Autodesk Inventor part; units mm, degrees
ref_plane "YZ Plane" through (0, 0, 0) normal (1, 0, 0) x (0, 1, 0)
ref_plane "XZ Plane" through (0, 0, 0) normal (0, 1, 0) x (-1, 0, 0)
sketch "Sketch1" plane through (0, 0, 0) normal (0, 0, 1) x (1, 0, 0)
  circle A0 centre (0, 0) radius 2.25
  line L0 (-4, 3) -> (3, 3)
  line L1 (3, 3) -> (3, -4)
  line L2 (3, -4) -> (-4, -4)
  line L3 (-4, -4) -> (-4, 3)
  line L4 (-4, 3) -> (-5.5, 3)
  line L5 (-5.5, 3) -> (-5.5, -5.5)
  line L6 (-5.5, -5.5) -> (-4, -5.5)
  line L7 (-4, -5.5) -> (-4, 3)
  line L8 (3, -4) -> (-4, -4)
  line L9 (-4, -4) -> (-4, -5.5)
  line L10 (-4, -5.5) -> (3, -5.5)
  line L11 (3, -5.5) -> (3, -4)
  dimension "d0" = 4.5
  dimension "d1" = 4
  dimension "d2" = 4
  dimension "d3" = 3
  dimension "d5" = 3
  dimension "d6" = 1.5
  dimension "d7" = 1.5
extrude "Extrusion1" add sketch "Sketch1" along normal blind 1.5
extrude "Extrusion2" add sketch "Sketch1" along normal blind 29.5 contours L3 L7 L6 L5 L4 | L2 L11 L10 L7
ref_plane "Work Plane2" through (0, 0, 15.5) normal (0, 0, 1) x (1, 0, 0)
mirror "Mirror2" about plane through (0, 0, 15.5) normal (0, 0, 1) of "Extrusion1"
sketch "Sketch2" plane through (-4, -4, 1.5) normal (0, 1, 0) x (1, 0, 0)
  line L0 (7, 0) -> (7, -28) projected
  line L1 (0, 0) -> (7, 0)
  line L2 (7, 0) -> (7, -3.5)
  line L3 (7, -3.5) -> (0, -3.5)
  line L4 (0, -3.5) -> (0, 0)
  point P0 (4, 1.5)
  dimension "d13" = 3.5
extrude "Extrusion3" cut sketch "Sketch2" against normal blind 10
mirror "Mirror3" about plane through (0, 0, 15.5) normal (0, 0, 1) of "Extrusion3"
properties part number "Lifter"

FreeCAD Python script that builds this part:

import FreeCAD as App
import Part
import Sketcher
Q = App.Units.Quantity

doc = App.newDocument("Part")
body = doc.addObject("PartDesign::Body", "Body")

# Sketch on XY plane
sketch1 = doc.addObject("Sketcher::SketchObject", "Sketch")
body.addObject(sketch1)
sketch1.AttachmentSupport = (doc.XY_Plane, [""])
sketch1.MapMode = "FlatFace"
sketch1.addGeometry(Part.LineSegment(App.Vector(3, 3, 0), App.Vector(-5.5, 3, 0)), False)
sketch1.addGeometry(Part.LineSegment(App.Vector(-5.5, 3, 0), App.Vector(-5.5, -5.5, 0)), False)
sketch1.addGeometry(Part.LineSegment(App.Vector(-5.5, -5.5, 0), App.Vector(3, -5.5, 0)), False)
sketch1.addGeometry(Part.LineSegment(App.Vector(3, -5.5, 0), App.Vector(3, 3, 0)), False)
sketch1.addGeometry(Part.Circle(App.Vector(0, 0, 0), App.Vector(0, 0, 1), 2.2), False)
sketch1.addConstraint(Sketcher.Constraint("Coincident", 0, 2, 1, 1))
sketch1.addConstraint(Sketcher.Constraint("Coincident", 1, 2, 2, 1))
sketch1.addConstraint(Sketcher.Constraint("Coincident", 2, 2, 3, 1))
sketch1.addConstraint(Sketcher.Constraint("Coincident", 3, 2, 0, 1))
sketch1.addConstraint(Sketcher.Constraint("Horizontal", 0))
sketch1.addConstraint(Sketcher.Constraint("Vertical", 1))
sketch1.addConstraint(Sketcher.Constraint("Horizontal", 2))
sketch1.addConstraint(Sketcher.Constraint("Vertical", 3))
sketch1.addConstraint(Sketcher.Constraint("Coincident", 4, 3, -1, 1))
sketch1.addConstraint(Sketcher.Constraint("Equal", 2, 1))
sketch1.addConstraint(Sketcher.Constraint("Diameter", 4, Q("4.5 mm")))
sketch1.addConstraint(Sketcher.Constraint("DistanceY", -1, 1, 0, 2, Q("3 mm")))
sketch1.addConstraint(Sketcher.Constraint("DistanceX", -1, 1, 2, 2, Q("3 mm")))
sketch1.addConstraint(Sketcher.Constraint("DistanceX", 0, 2, 0, 1, Q("8.5 mm")))
pad1 = doc.addObject("PartDesign::Pad", "Pad")
body.addObject(pad1)
pad1.Profile = sketch1
pad1.Length = 1.5

# Sketch on XY plane
sketch2 = doc.addObject("Sketcher::SketchObject", "Sketch001")
body.addObject(sketch2)
sketch2.AttachmentSupport = (doc.XY_Plane, [""])
sketch2.MapMode = "FlatFace"
sketch2.addGeometry(Part.LineSegment(App.Vector(-4, -4, 0), App.Vector(-4, 3, 0)), False)
sketch2.addGeometry(Part.LineSegment(App.Vector(-4, 3, 0), App.Vector(-5.5, 3, 0)), False)
sketch2.addGeometry(Part.LineSegment(App.Vector(-5.5, 3, 0), App.Vector(-5.5, -5.5, 0)), False)
sketch2.addGeometry(Part.LineSegment(App.Vector(-5.5, -5.5, 0), App.Vector(3, -5.5, 0)), False)
sketch2.addGeometry(Part.LineSegment(App.Vector(3, -5.5, 0), App.Vector(3, -4, 0)), False)
sketch2.addGeometry(Part.LineSegment(App.Vector(3, -4, 0), App.Vector(-4, -4, 0)), False)
sketch2.addConstraint(Sketcher.Constraint("Coincident", 0, 2, 1, 1))
sketch2.addConstraint(Sketcher.Constraint("Coincident", 1, 2, 2, 1))
sketch2.addConstraint(Sketcher.Constraint("Coincident", 2, 2, 3, 1))
sketch2.addConstraint(Sketcher.Constraint("Coincident", 3, 2, 4, 1))
sketch2.addConstraint(Sketcher.Constraint("Coincident", 4, 2, 5, 1))
sketch2.addConstraint(Sketcher.Constraint("Coincident", 5, 2, 0, 1))
sketch2.addConstraint(Sketcher.Constraint("Vertical", 0))
sketch2.addConstraint(Sketcher.Constraint("Horizontal", 1))
sketch2.addConstraint(Sketcher.Constraint("Vertical", 2))
sketch2.addConstraint(Sketcher.Constraint("Horizontal", 3))
sketch2.addConstraint(Sketcher.Constraint("Vertical", 4))
sketch2.addConstraint(Sketcher.Constraint("Horizontal", 5))
sketch2.addConstraint(Sketcher.Constraint("Equal", 5, 0))
sketch2.addConstraint(Sketcher.Constraint("Equal", 3, 2))
sketch2.addConstraint(Sketcher.Constraint("DistanceX", 1, 2, 1, 1, Q("1.5 mm")))
sketch2.addConstraint(Sketcher.Constraint("DistanceX", 0, 2, -1, 1, Q("4 mm")))
sketch2.addConstraint(Sketcher.Constraint("DistanceY", -1, 1, 0, 2, Q("3 mm")))
sketch2.addConstraint(Sketcher.Constraint("DistanceX", -1, 1, 3, 2, Q("3 mm")))
pad2 = doc.addObject("PartDesign::Pad", "Pad001")
body.addObject(pad2)
pad2.Profile = sketch2
pad2.Length = 29.5
doc.recompute()

datumplane = doc.addObject("PartDesign::Plane", "DatumPlane")
body.addObject(datumplane)
datumplane.AttachmentSupport = (doc.XY_Plane, [""])
datumplane.MapMode = "FlatFace"
datumplane.AttachmentOffset = App.Placement(App.Vector(0, 0, 15.5), App.Rotation())
mirrored = doc.addObject("PartDesign::Mirrored", "Mirrored")
body.addObject(mirrored)
mirrored.Originals = [pad1]
mirrored.MirrorPlane = (datumplane, [""])
body.Tip = mirrored

# Sketch on XZ plane
sketch3 = doc.addObject("Sketcher::SketchObject", "Sketch002")
body.addObject(sketch3)
sketch3.AttachmentSupport = (doc.XZ_Plane, [""])
sketch3.MapMode = "FlatFace"
sketch3.AttachmentOffset = App.Placement(App.Vector(0, 0, 4), App.Rotation())
sketch3.addGeometry(Part.LineSegment(App.Vector(3, 5, 0), App.Vector(3, 1.5, 0)), False)
sketch3.addGeometry(Part.LineSegment(App.Vector(3, 1.5, 0), App.Vector(-4, 1.5, 0)), False)
sketch3.addGeometry(Part.LineSegment(App.Vector(-4, 1.5, 0), App.Vector(-4, 5, 0)), False)
sketch3.addGeometry(Part.LineSegment(App.Vector(-4, 5, 0), App.Vector(3, 5, 0)), False)
sketch3.addConstraint(Sketcher.Constraint("Coincident", 0, 2, 1, 1))
sketch3.addConstraint(Sketcher.Constraint("Coincident", 1, 2, 2, 1))
sketch3.addConstraint(Sketcher.Constraint("Coincident", 2, 2, 3, 1))
sketch3.addConstraint(Sketcher.Constraint("Coincident", 3, 2, 0, 1))
sketch3.addConstraint(Sketcher.Constraint("Vertical", 0))
sketch3.addConstraint(Sketcher.Constraint("Horizontal", 1))
sketch3.addConstraint(Sketcher.Constraint("Vertical", 2))
sketch3.addConstraint(Sketcher.Constraint("Horizontal", 3))
sketch3.addConstraint(Sketcher.Constraint("DistanceY", 0, 2, 0, 1, Q("3.5 mm")))
sketch3.addConstraint(Sketcher.Constraint("DistanceX", 1, 2, 1, 1, Q("7 mm")))
sketch3.addConstraint(Sketcher.Constraint("DistanceX", -1, 1, 0, 2, Q("3 mm")))
sketch3.addConstraint(Sketcher.Constraint("DistanceY", -1, 1, 2, 2, Q("5 mm")))
pocket1 = doc.addObject("PartDesign::Pocket", "Pocket")
body.addObject(pocket1)
pocket1.Profile = sketch3
pocket1.Length = 10
pocket1.Reversed = True
doc.recompute()

datumplane2 = doc.addObject("PartDesign::Plane", "DatumPlane001")
body.addObject(datumplane2)
datumplane2.AttachmentSupport = (doc.XY_Plane, [""])
datumplane2.MapMode = "FlatFace"
datumplane2.AttachmentOffset = App.Placement(App.Vector(0, 0, 15.5), App.Rotation())
mirrored2 = doc.addObject("PartDesign::Mirrored", "Mirrored001")
body.addObject(mirrored2)
mirrored2.Originals = [pocket1]
mirrored2.MirrorPlane = (datumplane2, [""])
body.Tip = mirrored2

doc.recompute()
